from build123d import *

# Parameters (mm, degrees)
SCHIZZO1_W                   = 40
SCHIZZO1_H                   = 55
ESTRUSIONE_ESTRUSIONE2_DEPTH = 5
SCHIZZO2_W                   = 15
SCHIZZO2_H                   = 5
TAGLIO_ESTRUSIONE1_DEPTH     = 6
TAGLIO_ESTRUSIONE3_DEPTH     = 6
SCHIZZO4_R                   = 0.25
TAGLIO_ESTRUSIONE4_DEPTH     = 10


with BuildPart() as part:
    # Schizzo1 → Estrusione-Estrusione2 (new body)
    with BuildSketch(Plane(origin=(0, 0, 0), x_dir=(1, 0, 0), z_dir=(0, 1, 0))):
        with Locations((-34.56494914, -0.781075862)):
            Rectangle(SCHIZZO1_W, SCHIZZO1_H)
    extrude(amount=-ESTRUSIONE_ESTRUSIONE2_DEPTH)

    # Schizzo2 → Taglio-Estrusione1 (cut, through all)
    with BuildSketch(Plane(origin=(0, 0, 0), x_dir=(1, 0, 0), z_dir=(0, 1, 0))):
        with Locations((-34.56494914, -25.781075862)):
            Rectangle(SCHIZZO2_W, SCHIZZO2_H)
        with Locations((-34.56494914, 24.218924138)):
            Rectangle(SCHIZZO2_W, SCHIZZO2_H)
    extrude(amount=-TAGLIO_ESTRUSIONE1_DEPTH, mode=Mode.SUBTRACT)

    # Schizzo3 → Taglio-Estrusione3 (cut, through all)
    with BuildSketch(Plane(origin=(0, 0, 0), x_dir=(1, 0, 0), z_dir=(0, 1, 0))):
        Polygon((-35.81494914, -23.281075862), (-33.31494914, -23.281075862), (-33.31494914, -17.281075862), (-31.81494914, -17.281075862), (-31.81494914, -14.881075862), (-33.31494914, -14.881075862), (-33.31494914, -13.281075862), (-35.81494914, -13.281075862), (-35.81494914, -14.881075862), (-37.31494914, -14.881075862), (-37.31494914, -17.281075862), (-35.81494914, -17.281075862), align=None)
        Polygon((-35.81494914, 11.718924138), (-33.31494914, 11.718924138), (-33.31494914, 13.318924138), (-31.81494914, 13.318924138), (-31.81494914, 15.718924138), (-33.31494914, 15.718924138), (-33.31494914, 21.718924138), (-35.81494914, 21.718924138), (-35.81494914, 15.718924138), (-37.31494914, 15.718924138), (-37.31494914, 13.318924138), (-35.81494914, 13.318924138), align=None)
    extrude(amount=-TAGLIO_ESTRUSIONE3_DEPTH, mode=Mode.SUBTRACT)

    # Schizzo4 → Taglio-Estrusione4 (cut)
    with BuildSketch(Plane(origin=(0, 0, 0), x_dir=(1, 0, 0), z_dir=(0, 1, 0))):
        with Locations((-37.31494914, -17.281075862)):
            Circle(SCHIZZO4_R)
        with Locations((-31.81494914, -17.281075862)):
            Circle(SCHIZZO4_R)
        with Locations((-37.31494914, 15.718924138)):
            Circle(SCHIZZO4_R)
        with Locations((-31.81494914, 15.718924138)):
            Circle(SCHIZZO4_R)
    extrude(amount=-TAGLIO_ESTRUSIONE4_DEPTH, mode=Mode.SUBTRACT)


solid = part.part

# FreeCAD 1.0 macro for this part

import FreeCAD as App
import Part
import Sketcher
from FreeCAD import Vector


def add_polygon(sketch, points):
    """Adds a closed chain of lines whose ends are joined by coincident constraints."""
    first, n = sketch.GeometryCount, len(points)
    for a, b in zip(points, points[1:] + points[:1]):
        sketch.addGeometry(Part.LineSegment(App.Vector(*a, 0), App.Vector(*b, 0)), False)
    for i in range(n):
        sketch.addConstraint(Sketcher.Constraint("Coincident", first + i, 2, first + (i + 1) % n, 1))

doc = App.newDocument("Part")
params = doc.addObject("Spreadsheet::Sheet", "Params")
for row, (alias, value) in enumerate([
    ("sketch1_width", "40 mm"),
    ("sketch1_height", "55 mm"),
    ("pad1_length", "5 mm"),
    ("sketch2_width", "15 mm"),
    ("sketch2_height", "5 mm"),
    ("sketch3_height", "6 mm"),
    ("sketch3_width", "2.5 mm"),
    ("sketch3_width2", "1.5 mm"),
    ("sketch3_height2", "2.4 mm"),
    ("sketch3_height3", "1.6 mm"),
    ("sketch4_diameter", "0.5 mm"),
    ("pocket3_length", "10 mm"),
], start=1):
    params.set(f"A{row}", alias)
    params.set(f"B{row}", "=" + value)
    params.setAlias(f"B{row}", alias)

body = doc.addObject("PartDesign::Body", "Body")

# Sketch on XZ plane
sketch1 = body.newObject("Sketcher::SketchObject", "Sketch")
sketch1.AttachmentSupport = (doc.getObject("XZ_Plane"), [""])
sketch1.MapMode = "FlatFace"
add_polygon(sketch1, [(-55, -27), (-55, 28), (-15, 28), (-15, -27)])  # lines 0-3
sketch1.addConstraint([
    Sketcher.Constraint("Vertical", 0),
    Sketcher.Constraint("Horizontal", 1),
    Sketcher.Constraint("Vertical", 2),
    Sketcher.Constraint("Horizontal", 3),
    Sketcher.Constraint("DistanceX", 1, 1, 1, 2, 40.0),
    Sketcher.Constraint("DistanceY", 0, 1, 0, 2, 55.0),
    Sketcher.Constraint("DistanceX", 0, 2, -1, 1, 54.564949),
    Sketcher.Constraint("DistanceY", -1, 1, 0, 2, 28.281076),
])
sketch1.setExpression("Constraints[8]", "Params.sketch1_width")
sketch1.setExpression("Constraints[9]", "Params.sketch1_height")
pad1 = body.newObject("PartDesign::Pad", "Pad")
pad1.Profile = sketch1
pad1.setExpression("Length", "Params.pad1_length")

# Sketch on XZ plane
sketch2 = body.newObject("Sketcher::SketchObject", "Sketch001")
sketch2.AttachmentSupport = (doc.getObject("XZ_Plane"), [""])
sketch2.MapMode = "FlatFace"
add_polygon(sketch2, [(-42, 23), (-42, 28), (-27, 28), (-27, 23)])  # lines 0-3
add_polygon(sketch2, [(-42, -27), (-42, -22), (-27, -22), (-27, -27)])  # lines 4-7
sketch2.addConstraint([
    Sketcher.Constraint("Vertical", 0),
    Sketcher.Constraint("Horizontal", 1),
    Sketcher.Constraint("Vertical", 2),
    Sketcher.Constraint("Horizontal", 3),
    Sketcher.Constraint("Vertical", 4),
    Sketcher.Constraint("Horizontal", 5),
    Sketcher.Constraint("Vertical", 6),
    Sketcher.Constraint("Horizontal", 7),
    Sketcher.Constraint("Vertical", 3, 2, 4, 2),
    Sketcher.Constraint("Vertical", 2, 2, 5, 2),
    Sketcher.Constraint("Equal", 2, 4),
    Sketcher.Constraint("DistanceX", 1, 1, 1, 2, 15.0),
    Sketcher.Constraint("DistanceY", 0, 1, 0, 2, 5.0),
    Sketcher.Constraint("DistanceY", 4, 2, 3, 2, 45.0),
    Sketcher.Constraint("DistanceX", 0, 2, -1, 1, 42.064949),
    Sketcher.Constraint("DistanceY", -1, 1, 0, 2, 28.281076),
])
sketch2.setExpression("Constraints[19]", "Params.sketch2_width")
sketch2.setExpression("Constraints[20]", "Params.sketch2_height")
pocket1 = body.newObject("PartDesign::Pocket", "Pocket")
pocket1.Profile = sketch2
pocket1.Type = "ThroughAll"
pocket1.Reversed = True

# Sketch on XZ plane
sketch3 = body.newObject("Sketcher::SketchObject", "Sketch002")
sketch3.AttachmentSupport = (doc.getObject("XZ_Plane"), [""])
sketch3.MapMode = "FlatFace"
add_polygon(sketch3, [(-35.8, 23.3), (-33.3, 23.3), (-33.3, 17.3), (-31.8, 17.3), (-31.8, 14.9), (-33.3, 14.9), (-33.3, 13.3), (-35.8, 13.3), (-35.8, 14.9), (-37.3, 14.9), (-37.3, 17.3), (-35.8, 17.3)])  # lines 0-11
add_polygon(sketch3, [(-35.8, -11.7), (-33.3, -11.7), (-33.3, -13.3), (-31.8, -13.3), (-31.8, -15.7), (-33.3, -15.7), (-33.3, -21.7), (-35.8, -21.7), (-35.8, -15.7), (-37.3, -15.7), (-37.3, -13.3), (-35.8, -13.3)])  # lines 12-23
sketch3.addConstraint([
    Sketcher.Constraint("Horizontal", 0),
    Sketcher.Constraint("Vertical", 1),
    Sketcher.Constraint("Horizontal", 2),
    Sketcher.Constraint("Vertical", 3),
    Sketcher.Constraint("Horizontal", 4),
    Sketcher.Constraint("Vertical", 5),
    Sketcher.Constraint("Horizontal", 6),
    Sketcher.Constraint("Vertical", 7),
    Sketcher.Constraint("Horizontal", 8),
    Sketcher.Constraint("Vertical", 9),
    Sketcher.Constraint("Horizontal", 10),
    Sketcher.Constraint("Vertical", 11),
    Sketcher.Constraint("Horizontal", 12),
    Sketcher.Constraint("Vertical", 13),
    Sketcher.Constraint("Horizontal", 14),
    Sketcher.Constraint("Vertical", 15),
    Sketcher.Constraint("Horizontal", 16),
    Sketcher.Constraint("Vertical", 17),
    Sketcher.Constraint("Horizontal", 18),
    Sketcher.Constraint("Vertical", 19),
    Sketcher.Constraint("Horizontal", 20),
    Sketcher.Constraint("Vertical", 21),
    Sketcher.Constraint("Horizontal", 22),
    Sketcher.Constraint("Vertical", 23),
    Sketcher.Constraint("Horizontal", 4, 2, 7, 2),
    Sketcher.Constraint("Horizontal", 2, 2, 9, 2),
    Sketcher.Constraint("Horizontal", 16, 2, 19, 2),
    Sketcher.Constraint("Horizontal", 14, 2, 21, 2),
    Sketcher.Constraint("Vertical", 1, 2, 4, 2),
    Sketcher.Constraint("Vertical", 7, 2, 10, 2),
    Sketcher.Constraint("Vertical", 5, 2, 12, 2),
    Sketcher.Constraint("Vertical", 3, 2, 14, 2),
    Sketcher.Constraint("Vertical", 13, 2, 16, 2),
    Sketcher.Constraint("Vertical", 11, 2, 18, 2),
    Sketcher.Constraint("Vertical", 9, 2, 20, 2),
    Sketcher.Constraint("Vertical", 19, 2, 22, 2),
    Sketcher.Constraint("Equal", 4, 8),
    Sketcher.Constraint("Equal", 7, 13),
    Sketcher.Constraint("Equal", 9, 15),
    Sketcher.Constraint("Equal", 11, 17),
    Sketcher.Constraint("DistanceY", 1, 2, 1, 1, 6.0),
    Sketcher.Constraint("DistanceX", 0, 1, 0, 2, 2.5),
    Sketcher.Constraint("DistanceX", 2, 1, 2, 2, 1.5),
    Sketcher.Constraint("DistanceY", 3, 2, 3, 1, 2.4),
    Sketcher.Constraint("DistanceY", 5, 2, 5, 1, 1.6),
    Sketcher.Constraint("DistanceY", 12, 2, 5, 2, 25.0),
    Sketcher.Constraint("DistanceX", 0, 2, -1, 1, 33.314949),
    Sketcher.Constraint("DistanceY", -1, 1, 0, 2, 23.281076),
])
sketch3.setExpression("Constraints[64]", "Params.sketch3_height")
sketch3.setExpression("Constraints[65]", "Params.sketch3_width")
sketch3.setExpression("Constraints[66]", "Params.sketch3_width2")
sketch3.setExpression("Constraints[67]", "Params.sketch3_height2")
sketch3.setExpression("Constraints[68]", "Params.sketch3_height3")
pocket2 = body.newObject("PartDesign::Pocket", "Pocket001")
pocket2.Profile = sketch3
pocket2.Type = "ThroughAll"
pocket2.Reversed = True

# Sketch on XZ plane
sketch4 = body.newObject("Sketcher::SketchObject", "Sketch003")
sketch4.AttachmentSupport = (doc.getObject("XZ_Plane"), [""])
sketch4.MapMode = "FlatFace"
sketch4.addGeometry([
    Part.Circle(Vector(-37.31, 17.28, 0), Vector(0, 0, 1), 0.25),
    Part.Circle(Vector(-31.81, 17.28, 0), Vector(0, 0, 1), 0.25),
    Part.Circle(Vector(-37.31, -15.72, 0), Vector(0, 0, 1), 0.25),
    Part.Circle(Vector(-31.81, -15.72, 0), Vector(0, 0, 1), 0.25),
], False)
sketch4.addConstraint([
    Sketcher.Constraint("Equal", 0, 1),
    Sketcher.Constraint("Equal", 1, 2),
    Sketcher.Constraint("Equal", 2, 3),
    Sketcher.Constraint("Horizontal", 0, 3, 1, 3),
    Sketcher.Constraint("Horizontal", 2, 3, 3, 3),
    Sketcher.Constraint("Vertical", 0, 3, 2, 3),
    Sketcher.Constraint("Vertical", 1, 3, 3, 3),
    Sketcher.Constraint("Diameter", 0, 0.5),
    Sketcher.Constraint("DistanceY", 2, 3, 0, 3, 33.0),
    Sketcher.Constraint("DistanceX", 0, 3, 1, 3, 5.5),
    Sketcher.Constraint("DistanceX", 0, 3, -1, 1, 37.314949),
    Sketcher.Constraint("DistanceY", -1, 1, 0, 3, 17.281076),
])
sketch4.setExpression("Constraints[7]", "Params.sketch4_diameter")
pocket3 = body.newObject("PartDesign::Pocket", "Pocket002")
pocket3.Profile = sketch4
pocket3.setExpression("Length", "Params.pocket3_length")
pocket3.Reversed = True

doc.recompute()
